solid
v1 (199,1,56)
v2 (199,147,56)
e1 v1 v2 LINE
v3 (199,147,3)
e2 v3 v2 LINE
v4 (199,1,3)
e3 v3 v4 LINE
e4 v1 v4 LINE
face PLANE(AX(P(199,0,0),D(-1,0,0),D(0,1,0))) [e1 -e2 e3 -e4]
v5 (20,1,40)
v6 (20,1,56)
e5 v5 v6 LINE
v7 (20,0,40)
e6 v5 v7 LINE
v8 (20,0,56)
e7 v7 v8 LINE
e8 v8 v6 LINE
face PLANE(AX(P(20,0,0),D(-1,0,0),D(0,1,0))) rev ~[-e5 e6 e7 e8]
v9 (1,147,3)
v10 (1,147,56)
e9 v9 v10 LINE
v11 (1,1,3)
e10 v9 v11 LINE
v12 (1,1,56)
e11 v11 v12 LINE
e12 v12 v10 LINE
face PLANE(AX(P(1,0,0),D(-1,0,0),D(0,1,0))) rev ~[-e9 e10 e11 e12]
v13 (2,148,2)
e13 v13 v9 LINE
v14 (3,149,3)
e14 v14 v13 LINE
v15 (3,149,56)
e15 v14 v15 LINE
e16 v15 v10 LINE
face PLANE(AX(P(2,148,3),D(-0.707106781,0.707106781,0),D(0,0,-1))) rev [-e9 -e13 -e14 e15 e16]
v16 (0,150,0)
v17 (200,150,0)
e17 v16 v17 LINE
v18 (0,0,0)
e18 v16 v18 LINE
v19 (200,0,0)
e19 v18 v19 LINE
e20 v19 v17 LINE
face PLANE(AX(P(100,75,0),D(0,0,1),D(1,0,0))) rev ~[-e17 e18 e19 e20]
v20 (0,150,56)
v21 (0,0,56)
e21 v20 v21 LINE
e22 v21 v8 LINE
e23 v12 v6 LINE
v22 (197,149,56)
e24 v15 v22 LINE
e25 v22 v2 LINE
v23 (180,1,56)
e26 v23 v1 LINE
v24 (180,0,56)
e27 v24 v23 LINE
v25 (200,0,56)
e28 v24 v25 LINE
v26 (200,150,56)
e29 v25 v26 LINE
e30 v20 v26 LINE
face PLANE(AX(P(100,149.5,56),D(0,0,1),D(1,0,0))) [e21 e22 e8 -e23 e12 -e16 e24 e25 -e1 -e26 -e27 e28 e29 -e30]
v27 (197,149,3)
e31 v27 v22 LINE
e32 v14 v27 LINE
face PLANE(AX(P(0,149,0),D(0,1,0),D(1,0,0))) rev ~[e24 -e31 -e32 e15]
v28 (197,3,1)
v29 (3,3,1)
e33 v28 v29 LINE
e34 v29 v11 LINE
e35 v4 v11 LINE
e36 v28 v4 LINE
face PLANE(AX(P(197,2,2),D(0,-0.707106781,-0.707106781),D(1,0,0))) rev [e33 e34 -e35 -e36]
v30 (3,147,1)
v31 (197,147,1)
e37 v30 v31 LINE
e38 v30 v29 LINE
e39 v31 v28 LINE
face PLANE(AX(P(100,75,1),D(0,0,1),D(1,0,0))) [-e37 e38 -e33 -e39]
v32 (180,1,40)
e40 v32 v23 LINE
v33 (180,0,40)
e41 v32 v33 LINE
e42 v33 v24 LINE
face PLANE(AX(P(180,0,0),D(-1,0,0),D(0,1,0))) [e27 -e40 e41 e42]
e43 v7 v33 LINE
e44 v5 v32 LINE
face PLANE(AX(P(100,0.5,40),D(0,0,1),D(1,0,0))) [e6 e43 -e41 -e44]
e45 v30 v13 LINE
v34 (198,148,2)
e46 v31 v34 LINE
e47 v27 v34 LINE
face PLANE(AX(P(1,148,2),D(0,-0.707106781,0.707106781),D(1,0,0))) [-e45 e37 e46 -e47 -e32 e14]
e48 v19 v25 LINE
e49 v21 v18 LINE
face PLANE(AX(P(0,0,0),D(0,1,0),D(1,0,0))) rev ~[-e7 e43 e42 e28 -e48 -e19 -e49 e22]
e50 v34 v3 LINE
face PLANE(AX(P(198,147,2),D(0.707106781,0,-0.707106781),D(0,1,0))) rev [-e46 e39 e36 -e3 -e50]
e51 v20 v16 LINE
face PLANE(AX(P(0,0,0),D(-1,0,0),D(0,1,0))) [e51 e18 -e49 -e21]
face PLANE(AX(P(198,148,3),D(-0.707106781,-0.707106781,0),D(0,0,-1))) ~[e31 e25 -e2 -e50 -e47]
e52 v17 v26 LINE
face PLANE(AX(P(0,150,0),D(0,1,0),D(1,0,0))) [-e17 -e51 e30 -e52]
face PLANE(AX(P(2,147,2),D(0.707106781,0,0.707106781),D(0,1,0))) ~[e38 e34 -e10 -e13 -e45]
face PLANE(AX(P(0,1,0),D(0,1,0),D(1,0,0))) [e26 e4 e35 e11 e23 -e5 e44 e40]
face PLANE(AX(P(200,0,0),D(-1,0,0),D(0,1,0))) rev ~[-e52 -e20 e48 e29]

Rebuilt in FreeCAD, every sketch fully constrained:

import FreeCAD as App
import Part
import Sketcher
from FreeCAD import Vector
Q = App.Units.Quantity


def edges_at(feature, points):
    """Names of the edges that pass closest to the given points."""
    edges = feature.Shape.Edges
    near = lambda p: min(range(len(edges)), key=lambda i: edges[i].distToShape(Part.Vertex(*p))[0])
    return sorted({f"Edge{near(p) + 1}" for p in points})

doc = App.newDocument("Part")
body = doc.addObject("PartDesign::Body", "Body")

# Sketch on XY plane
sketch1 = doc.addObject("Sketcher::SketchObject", "Sketch")
body.addObject(sketch1)
sketch1.AttachmentSupport = (doc.XY_Plane, [""])
sketch1.MapMode = "FlatFace"
sketch1.addGeometry(Part.LineSegment(Vector(0, 1, 0), Vector(0, 0, 0)), False)
sketch1.addGeometry(Part.LineSegment(Vector(0, 0, 0), Vector(20, 0, 0)), False)
sketch1.addGeometry(Part.LineSegment(Vector(20, 0, 0), Vector(20, 1, 0)), False)
sketch1.addGeometry(Part.LineSegment(Vector(20, 1, 0), Vector(0, 1, 0)), False)
sketch1.addConstraint(Sketcher.Constraint("Coincident", 0, 2, 1, 1))
sketch1.addConstraint(Sketcher.Constraint("Coincident", 1, 2, 2, 1))
sketch1.addConstraint(Sketcher.Constraint("Coincident", 2, 2, 3, 1))
sketch1.addConstraint(Sketcher.Constraint("Coincident", 3, 2, 0, 1))
sketch1.addConstraint(Sketcher.Constraint("Vertical", 0))
sketch1.addConstraint(Sketcher.Constraint("Horizontal", 1))
sketch1.addConstraint(Sketcher.Constraint("Vertical", 2))
sketch1.addConstraint(Sketcher.Constraint("Horizontal", 3))
sketch1.addConstraint(Sketcher.Constraint("Coincident", 0, 2, -1, 1))
sketch1.addConstraint(Sketcher.Constraint("DistanceX", 1, 1, 1, 2, Q("20 mm")))
sketch1.addConstraint(Sketcher.Constraint("DistanceY", 0, 2, 0, 1, Q("1 mm")))
pad1 = doc.addObject("PartDesign::Pad", "Pad")
body.addObject(pad1)
pad1.Profile = sketch1
pad1.Length = 56
body2 = doc.addObject("PartDesign::Body", "Body001")

# Sketch on XY plane
sketch2 = doc.addObject("Sketcher::SketchObject", "Sketch001")
body2.addObject(sketch2)
sketch2.AttachmentSupport = (doc.getObject("XY_Plane001"), [""])
sketch2.MapMode = "FlatFace"
sketch2.addGeometry(Part.LineSegment(Vector(180, 1, 0), Vector(180, 0, 0)), False)
sketch2.addGeometry(Part.LineSegment(Vector(180, 0, 0), Vector(200, 0, 0)), False)
sketch2.addGeometry(Part.LineSegment(Vector(200, 0, 0), Vector(200, 1, 0)), False)
sketch2.addGeometry(Part.LineSegment(Vector(200, 1, 0), Vector(180, 1, 0)), False)
sketch2.addConstraint(Sketcher.Constraint("Coincident", 0, 2, 1, 1))
sketch2.addConstraint(Sketcher.Constraint("Coincident", 1, 2, 2, 1))
sketch2.addConstraint(Sketcher.Constraint("Coincident", 2, 2, 3, 1))
sketch2.addConstraint(Sketcher.Constraint("Coincident", 3, 2, 0, 1))
sketch2.addConstraint(Sketcher.Constraint("Vertical", 0))
sketch2.addConstraint(Sketcher.Constraint("Horizontal", 1))
sketch2.addConstraint(Sketcher.Constraint("Vertical", 2))
sketch2.addConstraint(Sketcher.Constraint("Horizontal", 3))
sketch2.addConstraint(Sketcher.Constraint("PointOnObject", 0, 2, -1))
sketch2.addConstraint(Sketcher.Constraint("DistanceX", 1, 1, 1, 2, Q("20 mm")))
sketch2.addConstraint(Sketcher.Constraint("DistanceY", 0, 2, 0, 1, Q("1 mm")))
sketch2.addConstraint(Sketcher.Constraint("DistanceX", -1, 1, 0, 2, Q("180 mm")))
pad2 = doc.addObject("PartDesign::Pad", "Pad001")
body2.addObject(pad2)
pad2.Profile = sketch2
pad2.Length = 56
body3 = doc.addObject("PartDesign::Body", "Body002")

# Sketch on XY plane
sketch3 = doc.addObject("Sketcher::SketchObject", "Sketch002")
body3.addObject(sketch3)
sketch3.AttachmentSupport = (doc.getObject("XY_Plane002"), [""])
sketch3.MapMode = "FlatFace"
sketch3.addGeometry(Part.LineSegment(Vector(0, 1, 0), Vector(0, 0, 0)), False)
sketch3.addGeometry(Part.LineSegment(Vector(0, 0, 0), Vector(200, 0, 0)), False)
sketch3.addGeometry(Part.LineSegment(Vector(200, 0, 0), Vector(200, 1, 0)), False)
sketch3.addGeometry(Part.LineSegment(Vector(200, 1, 0), Vector(0, 1, 0)), False)
sketch3.addConstraint(Sketcher.Constraint("Coincident", 0, 2, 1, 1))
sketch3.addConstraint(Sketcher.Constraint("Coincident", 1, 2, 2, 1))
sketch3.addConstraint(Sketcher.Constraint("Coincident", 2, 2, 3, 1))
sketch3.addConstraint(Sketcher.Constraint("Coincident", 3, 2, 0, 1))
sketch3.addConstraint(Sketcher.Constraint("Vertical", 0))
sketch3.addConstraint(Sketcher.Constraint("Horizontal", 1))
sketch3.addConstraint(Sketcher.Constraint("Vertical", 2))
sketch3.addConstraint(Sketcher.Constraint("Horizontal", 3))
sketch3.addConstraint(Sketcher.Constraint("Coincident", 0, 2, -1, 1))
sketch3.addConstraint(Sketcher.Constraint("DistanceX", 1, 1, 1, 2, Q("200 mm")))
sketch3.addConstraint(Sketcher.Constraint("DistanceY", 0, 2, 0, 1, Q("1 mm")))
pad3 = doc.addObject("PartDesign::Pad", "Pad002")
body3.addObject(pad3)
pad3.Profile = sketch3
pad3.Length = 40
body4 = doc.addObject("PartDesign::Body", "Body003")

# Sketch on XY plane
sketch4 = doc.addObject("Sketcher::SketchObject", "Sketch003")
body4.addObject(sketch4)
sketch4.AttachmentSupport = (doc.getObject("XY_Plane003"), [""])
sketch4.MapMode = "FlatFace"
sketch4.addGeometry(Part.LineSegment(Vector(199, 150, 0), Vector(199, 0, 0)), False)
sketch4.addGeometry(Part.LineSegment(Vector(199, 0, 0), Vector(200, 0, 0)), False)
sketch4.addGeometry(Part.LineSegment(Vector(200, 0, 0), Vector(200, 150, 0)), False)
sketch4.addGeometry(Part.LineSegment(Vector(200, 150, 0), Vector(199, 150, 0)), False)
sketch4.addConstraint(Sketcher.Constraint("Coincident", 0, 2, 1, 1))
sketch4.addConstraint(Sketcher.Constraint("Coincident", 1, 2, 2, 1))
sketch4.addConstraint(Sketcher.Constraint("Coincident", 2, 2, 3, 1))
sketch4.addConstraint(Sketcher.Constraint("Coincident", 3, 2, 0, 1))
sketch4.addConstraint(Sketcher.Constraint("Vertical", 0))
sketch4.addConstraint(Sketcher.Constraint("Horizontal", 1))
sketch4.addConstraint(Sketcher.Constraint("Vertical", 2))
sketch4.addConstraint(Sketcher.Constraint("Horizontal", 3))
sketch4.addConstraint(Sketcher.Constraint("PointOnObject", 0, 2, -1))
sketch4.addConstraint(Sketcher.Constraint("DistanceX", 1, 1, 1, 2, Q("1 mm")))
sketch4.addConstraint(Sketcher.Constraint("DistanceY", 0, 2, 0, 1, Q("150 mm")))
sketch4.addConstraint(Sketcher.Constraint("DistanceX", -1, 1, 0, 2, Q("199 mm")))
pad4 = doc.addObject("PartDesign::Pad", "Pad003")
body4.addObject(pad4)
pad4.Profile = sketch4
pad4.Length = 56
body5 = doc.addObject("PartDesign::Body", "Body004")

# Sketch on XY plane
sketch5 = doc.addObject("Sketcher::SketchObject", "Sketch004")
body5.addObject(sketch5)
sketch5.AttachmentSupport = (doc.getObject("XY_Plane004"), [""])
sketch5.MapMode = "FlatFace"
sketch5.addGeometry(Part.LineSegment(Vector(0, 150, 0), Vector(0, 0, 0)), False)
sketch5.addGeometry(Part.LineSegment(Vector(0, 0, 0), Vector(1, 0, 0)), False)
sketch5.addGeometry(Part.LineSegment(Vector(1, 0, 0), Vector(1, 150, 0)), False)
sketch5.addGeometry(Part.LineSegment(Vector(1, 150, 0), Vector(0, 150, 0)), False)
sketch5.addConstraint(Sketcher.Constraint("Coincident", 0, 2, 1, 1))
sketch5.addConstraint(Sketcher.Constraint("Coincident", 1, 2, 2, 1))
sketch5.addConstraint(Sketcher.Constraint("Coincident", 2, 2, 3, 1))
sketch5.addConstraint(Sketcher.Constraint("Coincident", 3, 2, 0, 1))
sketch5.addConstraint(Sketcher.Constraint("Vertical", 0))
sketch5.addConstraint(Sketcher.Constraint("Horizontal", 1))
sketch5.addConstraint(Sketcher.Constraint("Vertical", 2))
sketch5.addConstraint(Sketcher.Constraint("Horizontal", 3))
sketch5.addConstraint(Sketcher.Constraint("Coincident", 0, 2, -1, 1))
sketch5.addConstraint(Sketcher.Constraint("DistanceX", 1, 1, 1, 2, Q("1 mm")))
sketch5.addConstraint(Sketcher.Constraint("DistanceY", 0, 2, 0, 1, Q("150 mm")))
pad5 = doc.addObject("PartDesign::Pad", "Pad004")
body5.addObject(pad5)
pad5.Profile = sketch5
pad5.Length = 56
body6 = doc.addObject("PartDesign::Body", "Body005")

# Sketch on XY plane
sketch6 = doc.addObject("Sketcher::SketchObject", "Sketch005")
body6.addObject(sketch6)
sketch6.AttachmentSupport = (doc.getObject("XY_Plane005"), [""])
sketch6.MapMode = "FlatFace"
sketch6.addGeometry(Part.LineSegment(Vector(0, 150, 0), Vector(0, 0, 0)), False)
sketch6.addGeometry(Part.LineSegment(Vector(0, 0, 0), Vector(200, 0, 0)), False)
sketch6.addGeometry(Part.LineSegment(Vector(200, 0, 0), Vector(200, 150, 0)), False)
sketch6.addGeometry(Part.LineSegment(Vector(200, 150, 0), Vector(0, 150, 0)), False)
sketch6.addConstraint(Sketcher.Constraint("Coincident", 0, 2, 1, 1))
sketch6.addConstraint(Sketcher.Constraint("Coincident", 1, 2, 2, 1))
sketch6.addConstraint(Sketcher.Constraint("Coincident", 2, 2, 3, 1))
sketch6.addConstraint(Sketcher.Constraint("Coincident", 3, 2, 0, 1))
sketch6.addConstraint(Sketcher.Constraint("Vertical", 0))
sketch6.addConstraint(Sketcher.Constraint("Horizontal", 1))
sketch6.addConstraint(Sketcher.Constraint("Vertical", 2))
sketch6.addConstraint(Sketcher.Constraint("Horizontal", 3))
sketch6.addConstraint(Sketcher.Constraint("Coincident", 0, 2, -1, 1))
sketch6.addConstraint(Sketcher.Constraint("DistanceX", 1, 1, 1, 2, Q("200 mm")))
sketch6.addConstraint(Sketcher.Constraint("DistanceY", 0, 2, 0, 1, Q("150 mm")))
pad6 = doc.addObject("PartDesign::Pad", "Pad005")
body6.addObject(pad6)
pad6.Profile = sketch6
pad6.Length = 1
body7 = doc.addObject("PartDesign::Body", "Body006")

# Sketch on XY plane
sketch7 = doc.addObject("Sketcher::SketchObject", "Sketch006")
body7.addObject(sketch7)
sketch7.AttachmentSupport = (doc.getObject("XY_Plane006"), [""])
sketch7.MapMode = "FlatFace"
sketch7.addGeometry(Part.LineSegment(Vector(0, 150, 0), Vector(0, 149, 0)), False)
sketch7.addGeometry(Part.LineSegment(Vector(0, 149, 0), Vector(200, 149, 0)), False)
sketch7.addGeometry(Part.LineSegment(Vector(200, 149, 0), Vector(200, 150, 0)), False)
sketch7.addGeometry(Part.LineSegment(Vector(200, 150, 0), Vector(0, 150, 0)), False)
sketch7.addConstraint(Sketcher.Constraint("Coincident", 0, 2, 1, 1))
sketch7.addConstraint(Sketcher.Constraint("Coincident", 1, 2, 2, 1))
sketch7.addConstraint(Sketcher.Constraint("Coincident", 2, 2, 3, 1))
sketch7.addConstraint(Sketcher.Constraint("Coincident", 3, 2, 0, 1))
sketch7.addConstraint(Sketcher.Constraint("Vertical", 0))
sketch7.addConstraint(Sketcher.Constraint("Horizontal", 1))
sketch7.addConstraint(Sketcher.Constraint("Vertical", 2))
sketch7.addConstraint(Sketcher.Constraint("Horizontal", 3))
sketch7.addConstraint(Sketcher.Constraint("PointOnObject", 0, 2, -2))
sketch7.addConstraint(Sketcher.Constraint("DistanceX", 1, 1, 1, 2, Q("200 mm")))
sketch7.addConstraint(Sketcher.Constraint("DistanceY", 0, 2, 0, 1, Q("1 mm")))
sketch7.addConstraint(Sketcher.Constraint("DistanceY", -1, 1, 0, 2, Q("149 mm")))
pad7 = doc.addObject("PartDesign::Pad", "Pad006")
body7.addObject(pad7)
pad7.Profile = sketch7
pad7.Length = 56
doc.recompute()

boolean = doc.addObject("PartDesign::Boolean", "Boolean")
body7.addObject(boolean)
boolean.Type = "Fuse"
boolean.addObjects([body6])
doc.recompute()

boolean2 = doc.addObject("PartDesign::Boolean", "Boolean001")
body7.addObject(boolean2)
boolean2.Type = "Fuse"
boolean2.addObjects([body5])
doc.recompute()

boolean3 = doc.addObject("PartDesign::Boolean", "Boolean002")
body7.addObject(boolean3)
boolean3.Type = "Fuse"
boolean3.addObjects([body4])
doc.recompute()

boolean4 = doc.addObject("PartDesign::Boolean", "Boolean003")
body7.addObject(boolean4)
boolean4.Type = "Fuse"
boolean4.addObjects([body3])
doc.recompute()

chamfer = doc.addObject("PartDesign::Chamfer", "Chamfer")
body7.addObject(chamfer)
chamfer.Base = (boolean4, edges_at(boolean4, [(100, 149, 1)]))
chamfer.Size = 2
doc.recompute()

chamfer2 = doc.addObject("PartDesign::Chamfer", "Chamfer001")
body7.addObject(chamfer2)
chamfer2.Base = (chamfer, edges_at(chamfer, [(1, 74, 1)]))
chamfer2.Size = 2
doc.recompute()

chamfer3 = doc.addObject("PartDesign::Chamfer", "Chamfer002")
body7.addObject(chamfer3)
chamfer3.Base = (chamfer2, edges_at(chamfer2, [(199, 74, 1)]))
chamfer3.Size = 2
doc.recompute()

chamfer4 = doc.addObject("PartDesign::Chamfer", "Chamfer003")
body7.addObject(chamfer4)
chamfer4.Base = (chamfer3, edges_at(chamfer3, [(1, 149, 29.5)]))
chamfer4.Size = 2
doc.recompute()

chamfer5 = doc.addObject("PartDesign::Chamfer", "Chamfer004")
body7.addObject(chamfer5)
chamfer5.Base = (chamfer4, edges_at(chamfer4, [(199, 149, 29.5)]))
chamfer5.Size = 2
doc.recompute()

chamfer6 = doc.addObject("PartDesign::Chamfer", "Chamfer005")
body7.addObject(chamfer6)
chamfer6.Base = (chamfer5, edges_at(chamfer5, [(100, 1, 1)]))
chamfer6.Size = 2
doc.recompute()

boolean5 = doc.addObject("PartDesign::Boolean", "Boolean004")
body7.addObject(boolean5)
boolean5.Type = "Fuse"
boolean5.addObjects([body2])
doc.recompute()

boolean6 = doc.addObject("PartDesign::Boolean", "Boolean005")
body7.addObject(boolean6)
boolean6.Type = "Fuse"
boolean6.addObjects([body])

doc.recompute()
